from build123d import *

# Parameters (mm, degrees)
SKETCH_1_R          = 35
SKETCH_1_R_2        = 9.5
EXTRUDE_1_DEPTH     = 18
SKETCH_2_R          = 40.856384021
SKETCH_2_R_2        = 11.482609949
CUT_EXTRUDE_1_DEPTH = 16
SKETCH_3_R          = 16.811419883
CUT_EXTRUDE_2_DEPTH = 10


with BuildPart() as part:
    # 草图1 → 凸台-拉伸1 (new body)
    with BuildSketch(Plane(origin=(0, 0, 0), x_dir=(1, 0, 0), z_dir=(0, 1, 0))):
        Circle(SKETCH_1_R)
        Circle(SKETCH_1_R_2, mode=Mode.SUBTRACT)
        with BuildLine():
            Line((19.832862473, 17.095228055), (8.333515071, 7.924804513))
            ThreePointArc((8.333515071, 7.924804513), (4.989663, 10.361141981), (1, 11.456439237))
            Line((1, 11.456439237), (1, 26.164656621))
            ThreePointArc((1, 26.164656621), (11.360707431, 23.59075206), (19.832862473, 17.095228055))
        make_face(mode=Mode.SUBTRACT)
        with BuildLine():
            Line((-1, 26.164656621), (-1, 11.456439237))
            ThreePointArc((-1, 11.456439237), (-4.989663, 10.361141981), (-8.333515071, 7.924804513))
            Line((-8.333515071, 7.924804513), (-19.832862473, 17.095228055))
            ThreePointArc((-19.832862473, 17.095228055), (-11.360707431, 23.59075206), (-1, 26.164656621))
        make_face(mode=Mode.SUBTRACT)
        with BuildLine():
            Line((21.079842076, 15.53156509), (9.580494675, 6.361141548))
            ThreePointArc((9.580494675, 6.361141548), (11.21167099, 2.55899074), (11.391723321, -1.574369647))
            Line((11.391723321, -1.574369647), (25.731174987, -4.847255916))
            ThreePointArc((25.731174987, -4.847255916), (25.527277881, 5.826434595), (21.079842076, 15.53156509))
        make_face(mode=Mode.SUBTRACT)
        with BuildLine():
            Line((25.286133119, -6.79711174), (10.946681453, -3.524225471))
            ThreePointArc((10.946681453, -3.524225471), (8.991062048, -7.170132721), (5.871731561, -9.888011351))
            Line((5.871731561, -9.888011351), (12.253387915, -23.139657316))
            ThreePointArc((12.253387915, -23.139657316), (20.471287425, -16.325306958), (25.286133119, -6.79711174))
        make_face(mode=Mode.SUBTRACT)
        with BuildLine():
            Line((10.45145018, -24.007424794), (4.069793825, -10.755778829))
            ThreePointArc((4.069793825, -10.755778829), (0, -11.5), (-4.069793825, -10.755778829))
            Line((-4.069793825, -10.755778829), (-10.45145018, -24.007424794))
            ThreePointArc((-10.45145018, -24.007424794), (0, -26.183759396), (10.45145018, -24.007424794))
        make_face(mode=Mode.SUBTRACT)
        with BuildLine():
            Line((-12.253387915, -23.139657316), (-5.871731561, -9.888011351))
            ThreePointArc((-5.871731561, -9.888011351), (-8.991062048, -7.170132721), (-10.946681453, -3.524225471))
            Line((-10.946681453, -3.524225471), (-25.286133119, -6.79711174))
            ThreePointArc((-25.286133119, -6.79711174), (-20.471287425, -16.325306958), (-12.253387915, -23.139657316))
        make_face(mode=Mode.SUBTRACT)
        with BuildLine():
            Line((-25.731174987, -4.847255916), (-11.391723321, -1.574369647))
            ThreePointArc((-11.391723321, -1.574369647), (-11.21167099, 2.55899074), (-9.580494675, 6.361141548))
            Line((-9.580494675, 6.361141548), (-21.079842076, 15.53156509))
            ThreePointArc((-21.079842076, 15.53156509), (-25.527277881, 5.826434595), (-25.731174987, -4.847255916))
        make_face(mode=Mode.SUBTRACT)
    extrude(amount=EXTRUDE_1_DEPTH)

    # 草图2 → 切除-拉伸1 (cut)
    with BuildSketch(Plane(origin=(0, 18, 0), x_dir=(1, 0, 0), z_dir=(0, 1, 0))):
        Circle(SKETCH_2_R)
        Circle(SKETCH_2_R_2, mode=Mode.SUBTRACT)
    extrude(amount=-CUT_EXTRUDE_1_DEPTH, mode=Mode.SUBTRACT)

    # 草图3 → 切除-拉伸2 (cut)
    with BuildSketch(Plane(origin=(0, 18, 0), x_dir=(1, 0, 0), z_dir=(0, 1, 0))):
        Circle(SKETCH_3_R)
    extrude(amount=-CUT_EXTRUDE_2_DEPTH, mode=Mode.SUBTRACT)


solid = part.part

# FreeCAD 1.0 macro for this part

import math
import FreeCAD as App
import Part
import Sketcher
Q = App.Units.Quantity

doc = App.newDocument("Part")
params = doc.addObject("Spreadsheet::Sheet", "Params")
for row, (alias, value) in enumerate([
    ("sketch1_diameter", "70 mm"),
    ("sketch1_diameter2", "19 mm"),
    ("sketch1_radius", "11.5 mm"),
    ("pad1_length", "18 mm"),
    ("pocket1_length", "16 mm"),
    ("pocket2_length", "10 mm"),
], start=1):
    params.set(f"A{row}", alias)
    params.set(f"B{row}", "=" + value)
    params.setAlias(f"B{row}", alias)

body = doc.addObject("PartDesign::Body", "Body")

sketch1 = doc.addObject("Sketcher::SketchObject", "Sketch")
body.addObject(sketch1)
sketch1.AttachmentSupport = (doc.XZ_Plane, [""])
sketch1.MapMode = "FlatFace"
sketch1.addGeometry(Part.Circle(App.Vector(0, 0, 0), App.Vector(0, 0, 1), 35), False)
sketch1.addGeometry(Part.LineSegment(App.Vector(-6, 10, 0), App.Vector(-12, 23, 0)), False)
sketch1.addGeometry(Part.ArcOfCircle(Part.Circle(App.Vector(0, 0, 0), App.Vector(0, 0, 1), 26), math.radians(118), math.radians(165)), False)
sketch1.addGeometry(Part.LineSegment(App.Vector(-25, 7, 0), App.Vector(-11, 4, 0)), False)
sketch1.addGeometry(Part.ArcOfCircle(Part.Circle(App.Vector(0, 0, 0), App.Vector(0, 0, 1), 12), math.radians(121), math.radians(162)), False)
sketch1.addGeometry(Part.LineSegment(App.Vector(4, 11, 0), App.Vector(10, 24, 0)), False)
sketch1.addGeometry(Part.ArcOfCircle(Part.Circle(App.Vector(0, 0, 0), App.Vector(0, 0, 1), 26), math.radians(66), math.radians(114)), False)
sketch1.addGeometry(Part.LineSegment(App.Vector(-10, 24, 0), App.Vector(-4, 11, 0)), False)
sketch1.addGeometry(Part.ArcOfCircle(Part.Circle(App.Vector(0, 0, 0), App.Vector(0, 0, 1), 11), math.radians(69), math.radians(111)), False)
sketch1.addGeometry(Part.LineSegment(App.Vector(11, 4, 0), App.Vector(25, 7, 0)), False)
sketch1.addGeometry(Part.ArcOfCircle(Part.Circle(App.Vector(0, 0, 0), App.Vector(0, 0, 1), 26), math.radians(15), math.radians(62)), False)
sketch1.addGeometry(Part.LineSegment(App.Vector(12, 23, 0), App.Vector(6, 10, 0)), False)
sketch1.addGeometry(Part.ArcOfCircle(Part.Circle(App.Vector(0, 0, 0), App.Vector(0, 0, 1), 12), math.radians(18), math.radians(59)), False)
sketch1.addGeometry(Part.LineSegment(App.Vector(-11, 2, 0), App.Vector(-26, 5, 0)), False)
sketch1.addGeometry(Part.ArcOfCircle(Part.Circle(App.Vector(0, 0, 0), App.Vector(0, 0, 1), 26), math.radians(169), math.radians(216)), False)
sketch1.addGeometry(Part.LineSegment(App.Vector(-21, -16, 0), App.Vector(-10, -6, 0)), False)
sketch1.addGeometry(Part.ArcOfCircle(Part.Circle(App.Vector(0, 0, 0), App.Vector(0, 0, 1), 12), math.radians(172), math.radians(214)), False)
sketch1.addGeometry(Part.ArcOfCircle(Part.Circle(App.Vector(0, 0, 0), App.Vector(0, 0, 1), 26), math.radians(-139), math.radians(-92)), False)
sketch1.addGeometry(Part.LineSegment(App.Vector(-1, -26, 0), App.Vector(-1, -11, 0)), False)
sketch1.addGeometry(Part.ArcOfCircle(Part.Circle(App.Vector(0, 0, 0), App.Vector(0, 0, 1), 11), math.radians(-136), math.radians(-95)), False)
sketch1.addGeometry(Part.LineSegment(App.Vector(-8, -8, 0), App.Vector(-20, -17, 0)), False)
sketch1.addGeometry(Part.Circle(App.Vector(0, 0, 0), App.Vector(0, 0, 1), 10), False)
sketch1.addGeometry(Part.LineSegment(App.Vector(10, -6, 0), App.Vector(21, -16, 0)), False)
sketch1.addGeometry(Part.ArcOfCircle(Part.Circle(App.Vector(0, 0, 0), App.Vector(0, 0, 1), 26), math.radians(-36), math.radians(11)), False)
sketch1.addGeometry(Part.LineSegment(App.Vector(26, 5, 0), App.Vector(11, 2, 0)), False)
sketch1.addGeometry(Part.ArcOfCircle(Part.Circle(App.Vector(0, 0, 0), App.Vector(0, 0, 1), 12), math.radians(-34), math.radians(8)), False)
sketch1.addGeometry(Part.ArcOfCircle(Part.Circle(App.Vector(0, 0, 0), App.Vector(0, 0, 1), 26), math.radians(-88), math.radians(-41)), False)
sketch1.addGeometry(Part.LineSegment(App.Vector(20, -17, 0), App.Vector(8, -8, 0)), False)
sketch1.addGeometry(Part.ArcOfCircle(Part.Circle(App.Vector(0, 0, 0), App.Vector(0, 0, 1), 11), math.radians(-85), math.radians(-44)), False)
sketch1.addGeometry(Part.LineSegment(App.Vector(1, -11, 0), App.Vector(1, -26, 0)), False)
sketch1.addConstraint(Sketcher.Constraint("Coincident", 1, 2, 2, 1))
sketch1.addConstraint(Sketcher.Constraint("Coincident", 2, 2, 3, 1))
sketch1.addConstraint(Sketcher.Constraint("Coincident", 3, 2, 4, 2))
sketch1.addConstraint(Sketcher.Constraint("Coincident", 4, 1, 1, 1))
sketch1.addConstraint(Sketcher.Constraint("Coincident", 5, 2, 6, 1))
sketch1.addConstraint(Sketcher.Constraint("Coincident", 6, 2, 7, 1))
sketch1.addConstraint(Sketcher.Constraint("Coincident", 7, 2, 8, 2))
sketch1.addConstraint(Sketcher.Constraint("Coincident", 8, 1, 5, 1))
sketch1.addConstraint(Sketcher.Constraint("Coincident", 9, 2, 10, 1))
sketch1.addConstraint(Sketcher.Constraint("Coincident", 10, 2, 11, 1))
sketch1.addConstraint(Sketcher.Constraint("Coincident", 11, 2, 12, 2))
sketch1.addConstraint(Sketcher.Constraint("Coincident", 12, 1, 9, 1))
sketch1.addConstraint(Sketcher.Constraint("Coincident", 13, 2, 14, 1))
sketch1.addConstraint(Sketcher.Constraint("Coincident", 14, 2, 15, 1))
sketch1.addConstraint(Sketcher.Constraint("Coincident", 15, 2, 16, 2))
sketch1.addConstraint(Sketcher.Constraint("Coincident", 16, 1, 13, 1))
sketch1.addConstraint(Sketcher.Constraint("Coincident", 17, 2, 18, 1))
sketch1.addConstraint(Sketcher.Constraint("Coincident", 18, 2, 19, 2))
sketch1.addConstraint(Sketcher.Constraint("Coincident", 19, 1, 20, 1))
sketch1.addConstraint(Sketcher.Constraint("Coincident", 20, 2, 17, 1))
sketch1.addConstraint(Sketcher.Constraint("Coincident", 22, 2, 23, 1))
sketch1.addConstraint(Sketcher.Constraint("Coincident", 23, 2, 24, 1))
sketch1.addConstraint(Sketcher.Constraint("Coincident", 24, 2, 25, 2))
sketch1.addConstraint(Sketcher.Constraint("Coincident", 25, 1, 22, 1))
sketch1.addConstraint(Sketcher.Constraint("Coincident", 26, 2, 27, 1))
sketch1.addConstraint(Sketcher.Constraint("Coincident", 27, 2, 28, 2))
sketch1.addConstraint(Sketcher.Constraint("Coincident", 28, 1, 29, 1))
sketch1.addConstraint(Sketcher.Constraint("Coincident", 29, 2, 26, 1))
sketch1.addConstraint(Sketcher.Constraint("Vertical", 18))
sketch1.addConstraint(Sketcher.Constraint("Vertical", 29))
sketch1.addConstraint(Sketcher.Constraint("Coincident", 0, 3, -1, 1))
sketch1.addConstraint(Sketcher.Constraint("Coincident", 2, 3, -1, 1))
sketch1.addConstraint(Sketcher.Constraint("Coincident", 4, 3, -1, 1))
sketch1.addConstraint(Sketcher.Constraint("Coincident", 6, 3, -1, 1))
sketch1.addConstraint(Sketcher.Constraint("Coincident", 8, 3, -1, 1))
sketch1.addConstraint(Sketcher.Constraint("Coincident", 10, 3, -1, 1))
sketch1.addConstraint(Sketcher.Constraint("Coincident", 12, 3, -1, 1))
sketch1.addConstraint(Sketcher.Constraint("Coincident", 14, 3, -1, 1))
sketch1.addConstraint(Sketcher.Constraint("Coincident", 16, 3, -1, 1))
sketch1.addConstraint(Sketcher.Constraint("Coincident", 17, 3, -1, 1))
sketch1.addConstraint(Sketcher.Constraint("Coincident", 19, 3, -1, 1))
sketch1.addConstraint(Sketcher.Constraint("Coincident", 21, 3, -1, 1))
sketch1.addConstraint(Sketcher.Constraint("Coincident", 23, 3, -1, 1))
sketch1.addConstraint(Sketcher.Constraint("Coincident", 25, 3, -1, 1))
sketch1.addConstraint(Sketcher.Constraint("Coincident", 26, 3, -1, 1))
sketch1.addConstraint(Sketcher.Constraint("Coincident", 28, 3, -1, 1))
sketch1.addConstraint(Sketcher.Constraint("Equal", 2, 6))
sketch1.addConstraint(Sketcher.Constraint("Equal", 4, 8))
sketch1.addConstraint(Sketcher.Constraint("Equal", 6, 10))
sketch1.addConstraint(Sketcher.Constraint("Equal", 8, 12))
sketch1.addConstraint(Sketcher.Constraint("Equal", 10, 14))
sketch1.addConstraint(Sketcher.Constraint("Equal", 12, 16))
sketch1.addConstraint(Sketcher.Constraint("Equal", 14, 17))
sketch1.addConstraint(Sketcher.Constraint("Equal", 16, 19))
sketch1.addConstraint(Sketcher.Constraint("Equal", 17, 23))
sketch1.addConstraint(Sketcher.Constraint("Equal", 19, 25))
sketch1.addConstraint(Sketcher.Constraint("Equal", 23, 26))
sketch1.addConstraint(Sketcher.Constraint("Equal", 25, 28))
sketch1.addConstraint(Sketcher.Constraint("Parallel", 1, 7))
sketch1.addConstraint(Sketcher.Constraint("Parallel", 5, 11))
sketch1.addConstraint(Sketcher.Constraint("Parallel", 3, 13))
sketch1.addConstraint(Sketcher.Constraint("Parallel", 15, 20))
sketch1.addConstraint(Sketcher.Constraint("Parallel", 9, 24))
sketch1.addConstraint(Sketcher.Constraint("Parallel", 22, 27))
sketch1.addConstraint(Sketcher.Constraint("Horizontal", 5, 2, 6, 2))
sketch1.addConstraint(Sketcher.Constraint("Horizontal", 7, 2, 8, 1))
sketch1.addConstraint(Sketcher.Constraint("Horizontal", 2, 2, 9, 2))
sketch1.addConstraint(Sketcher.Constraint("Horizontal", 1, 2, 10, 2))
sketch1.addConstraint(Sketcher.Constraint("Horizontal", 3, 2, 12, 1))
sketch1.addConstraint(Sketcher.Constraint("Horizontal", 14, 2, 22, 2))
sketch1.addConstraint(Sketcher.Constraint("Horizontal", 13, 2, 23, 2))
sketch1.addConstraint(Sketcher.Constraint("Horizontal", 15, 2, 25, 1))
sketch1.addConstraint(Sketcher.Constraint("Horizontal", 20, 2, 26, 2))
sketch1.addConstraint(Sketcher.Constraint("Horizontal", 18, 2, 28, 1))
sketch1.addConstraint(Sketcher.Constraint("Equal", 1, 3))
sketch1.addConstraint(Sketcher.Constraint("Equal", 3, 5))
sketch1.addConstraint(Sketcher.Constraint("Equal", 11, 13))
sketch1.addConstraint(Sketcher.Constraint("Equal", 13, 15))
sketch1.addConstraint(Sketcher.Constraint("Equal", 15, 20))
sketch1.addConstraint(Sketcher.Constraint("Diameter", 0, Q("70 mm")))
sketch1.addConstraint(Sketcher.Constraint("Diameter", 21, Q("19 mm")))
sketch1.addConstraint(Sketcher.Constraint("Radius", 4, Q("11.5 mm")))
sketch1.addConstraint(Sketcher.Constraint("DistanceX", 17, 2, -1, 1, Q("1 mm")))
sketch1.addConstraint(Sketcher.Constraint("Radius", 2, Q("26.183759 mm")))
sketch1.addConstraint(Sketcher.Constraint("DistanceY", 3, 2, 6, 2, Q("20.483199 mm")))
sketch1.addConstraint(Sketcher.Constraint("DistanceX", 6, 2, 5, 2, Q("20.9029 mm")))
sketch1.addConstraint(Sketcher.Constraint("DistanceY", 13, 2, 1, 2, Q("18.292401 mm")))
sketch1.addConstraint(Sketcher.Constraint("DistanceY", 15, 2, -1, 1, Q("6.361142 mm")))
sketch1.setExpression("Constraints[79]", "Params.sketch1_diameter")
sketch1.setExpression("Constraints[80]", "Params.sketch1_diameter2")
sketch1.setExpression("Constraints[81]", "Params.sketch1_radius")
pad1 = doc.addObject("PartDesign::Pad", "Pad")
body.addObject(pad1)
pad1.Profile = sketch1
pad1.setExpression("Length", "Params.pad1_length")
pad1.Reversed = True

sketch2 = doc.addObject("Sketcher::SketchObject", "Sketch001")
body.addObject(sketch2)
sketch2.AttachmentSupport = (doc.XZ_Plane, [""])
sketch2.MapMode = "FlatFace"
sketch2.AttachmentOffset = App.Placement(App.Vector(0, 0, -18), App.Rotation())
sketch2.addGeometry(Part.Circle(App.Vector(0, 0, 0), App.Vector(0, 0, 1), 41), False)
sketch2.addGeometry(Part.Circle(App.Vector(0, 0, 0), App.Vector(0, 0, 1), 11), False)
sketch2.addConstraint(Sketcher.Constraint("Coincident", 0, 3, -1, 1))
sketch2.addConstraint(Sketcher.Constraint("Coincident", 1, 3, -1, 1))
sketch2.addConstraint(Sketcher.Constraint("Diameter", 0, Q("81.712768 mm")))
sketch2.addConstraint(Sketcher.Constraint("Diameter", 1, Q("22.96522 mm")))
pocket1 = doc.addObject("PartDesign::Pocket", "Pocket")
body.addObject(pocket1)
pocket1.Profile = sketch2
pocket1.setExpression("Length", "Params.pocket1_length")
pocket1.Reversed = True

sketch3 = doc.addObject("Sketcher::SketchObject", "Sketch002")
body.addObject(sketch3)
sketch3.AttachmentSupport = (doc.XZ_Plane, [""])
sketch3.MapMode = "FlatFace"
sketch3.AttachmentOffset = App.Placement(App.Vector(0, 0, -18), App.Rotation())
sketch3.addGeometry(Part.Circle(App.Vector(0, 0, 0), App.Vector(0, 0, 1), 17), False)
sketch3.addConstraint(Sketcher.Constraint("Coincident", 0, 3, -1, 1))
sketch3.addConstraint(Sketcher.Constraint("Diameter", 0, Q("33.62284 mm")))
pocket2 = doc.addObject("PartDesign::Pocket", "Pocket001")
body.addObject(pocket2)
pocket2.Profile = sketch3
pocket2.setExpression("Length", "Params.pocket2_length")
pocket2.Reversed = True

doc.recompute()
